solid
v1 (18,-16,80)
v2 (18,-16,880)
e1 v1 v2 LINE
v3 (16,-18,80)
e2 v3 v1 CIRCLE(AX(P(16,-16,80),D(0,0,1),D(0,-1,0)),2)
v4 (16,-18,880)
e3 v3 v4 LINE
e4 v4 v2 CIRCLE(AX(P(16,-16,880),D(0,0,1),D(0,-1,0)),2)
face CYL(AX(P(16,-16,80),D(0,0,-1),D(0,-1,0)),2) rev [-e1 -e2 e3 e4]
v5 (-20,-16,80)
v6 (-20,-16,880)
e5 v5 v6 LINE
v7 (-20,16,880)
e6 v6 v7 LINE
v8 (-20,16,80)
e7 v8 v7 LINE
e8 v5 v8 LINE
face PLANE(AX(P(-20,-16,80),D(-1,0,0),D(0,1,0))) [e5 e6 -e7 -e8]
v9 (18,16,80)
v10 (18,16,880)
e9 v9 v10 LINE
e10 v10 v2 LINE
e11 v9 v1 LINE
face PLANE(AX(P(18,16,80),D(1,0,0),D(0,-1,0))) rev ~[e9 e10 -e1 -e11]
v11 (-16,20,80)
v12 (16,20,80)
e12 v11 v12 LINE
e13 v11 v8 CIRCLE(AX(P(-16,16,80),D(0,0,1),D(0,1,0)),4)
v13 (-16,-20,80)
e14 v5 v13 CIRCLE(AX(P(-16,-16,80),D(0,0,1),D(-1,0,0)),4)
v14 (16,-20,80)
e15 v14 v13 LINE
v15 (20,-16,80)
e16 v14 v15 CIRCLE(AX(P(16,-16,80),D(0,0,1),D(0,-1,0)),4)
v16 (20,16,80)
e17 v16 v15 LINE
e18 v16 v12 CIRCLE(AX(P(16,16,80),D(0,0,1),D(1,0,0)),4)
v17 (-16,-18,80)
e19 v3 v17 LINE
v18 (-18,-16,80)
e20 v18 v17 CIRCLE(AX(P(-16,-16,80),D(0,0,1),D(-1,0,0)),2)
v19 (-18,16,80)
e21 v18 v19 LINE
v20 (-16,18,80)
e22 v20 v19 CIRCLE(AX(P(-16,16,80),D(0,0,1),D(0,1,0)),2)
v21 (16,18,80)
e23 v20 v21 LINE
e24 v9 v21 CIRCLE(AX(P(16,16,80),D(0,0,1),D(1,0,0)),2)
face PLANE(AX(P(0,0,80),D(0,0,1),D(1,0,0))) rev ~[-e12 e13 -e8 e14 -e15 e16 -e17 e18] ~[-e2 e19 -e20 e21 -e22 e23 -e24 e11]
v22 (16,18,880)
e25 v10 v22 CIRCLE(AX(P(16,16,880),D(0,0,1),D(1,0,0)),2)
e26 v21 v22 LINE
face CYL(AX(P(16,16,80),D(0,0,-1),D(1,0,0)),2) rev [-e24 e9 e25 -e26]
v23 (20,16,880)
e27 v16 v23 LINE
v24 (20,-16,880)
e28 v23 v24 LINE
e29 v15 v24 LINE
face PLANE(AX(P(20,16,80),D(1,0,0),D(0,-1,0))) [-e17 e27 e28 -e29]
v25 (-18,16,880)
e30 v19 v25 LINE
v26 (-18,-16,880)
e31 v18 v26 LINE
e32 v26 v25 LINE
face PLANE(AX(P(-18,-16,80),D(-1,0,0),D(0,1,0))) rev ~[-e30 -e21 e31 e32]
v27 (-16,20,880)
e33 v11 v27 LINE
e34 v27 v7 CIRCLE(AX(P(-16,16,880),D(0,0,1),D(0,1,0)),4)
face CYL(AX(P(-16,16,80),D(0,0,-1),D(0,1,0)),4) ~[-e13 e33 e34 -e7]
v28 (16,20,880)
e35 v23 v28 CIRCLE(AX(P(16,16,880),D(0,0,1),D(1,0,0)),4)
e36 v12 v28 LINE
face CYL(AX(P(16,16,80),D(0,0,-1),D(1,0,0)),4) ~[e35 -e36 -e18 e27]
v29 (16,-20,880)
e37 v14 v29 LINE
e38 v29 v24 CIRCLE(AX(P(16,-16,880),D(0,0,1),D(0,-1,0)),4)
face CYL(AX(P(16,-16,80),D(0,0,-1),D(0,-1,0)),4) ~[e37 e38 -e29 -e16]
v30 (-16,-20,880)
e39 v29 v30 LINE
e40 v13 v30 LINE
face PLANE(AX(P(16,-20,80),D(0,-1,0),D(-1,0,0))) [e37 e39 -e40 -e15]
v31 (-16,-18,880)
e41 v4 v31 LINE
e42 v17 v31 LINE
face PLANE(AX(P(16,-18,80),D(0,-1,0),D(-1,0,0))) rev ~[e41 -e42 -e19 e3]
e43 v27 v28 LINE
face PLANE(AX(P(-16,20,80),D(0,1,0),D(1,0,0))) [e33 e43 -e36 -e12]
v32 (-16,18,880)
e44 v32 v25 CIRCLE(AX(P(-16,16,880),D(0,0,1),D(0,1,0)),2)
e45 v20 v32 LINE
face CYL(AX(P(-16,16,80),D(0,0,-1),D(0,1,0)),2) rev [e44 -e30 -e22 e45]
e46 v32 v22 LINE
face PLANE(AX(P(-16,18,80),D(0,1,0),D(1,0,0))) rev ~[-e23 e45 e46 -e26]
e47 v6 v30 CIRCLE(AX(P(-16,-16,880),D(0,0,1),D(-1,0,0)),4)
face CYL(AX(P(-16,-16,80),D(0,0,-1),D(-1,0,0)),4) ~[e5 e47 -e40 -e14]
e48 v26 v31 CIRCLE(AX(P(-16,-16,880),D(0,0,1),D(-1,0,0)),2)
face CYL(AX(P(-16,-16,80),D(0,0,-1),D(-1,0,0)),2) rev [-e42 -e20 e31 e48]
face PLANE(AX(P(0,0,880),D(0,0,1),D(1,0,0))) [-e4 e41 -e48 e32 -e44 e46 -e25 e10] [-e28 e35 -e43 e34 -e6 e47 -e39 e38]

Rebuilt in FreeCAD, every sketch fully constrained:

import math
import FreeCAD as App
import Part
import Sketcher

V = App.Vector
Q = App.Units.Quantity

doc = App.newDocument("Part")
body = doc.addObject("PartDesign::Body", "Body")

# Sketch on XY plane
sketch1 = body.newObject("Sketcher::SketchObject", "Sketch")
sketch1.AttachmentSupport = (doc.getObject("XY_Plane"), [""])
sketch1.MapMode = "FlatFace"
sketch1.AttachmentOffset = App.Placement(V(0, 0, 80), App.Rotation())
sketch1.addGeometry(Part.LineSegment(V(-20, 16, 0), V(-20, -16, 0)), False)
sketch1.addGeometry(Part.ArcOfCircle(Part.Circle(V(-16, -16, 0), V(0, 0, 1), 4), math.radians(180), math.radians(270)), False)
sketch1.addGeometry(Part.LineSegment(V(-16, -20, 0), V(16, -20, 0)), False)
sketch1.addGeometry(Part.ArcOfCircle(Part.Circle(V(16, -16, 0), V(0, 0, 1), 4), math.radians(-90), math.radians(0)), False)
sketch1.addGeometry(Part.LineSegment(V(20, -16, 0), V(20, 16, 0)), False)
sketch1.addGeometry(Part.ArcOfCircle(Part.Circle(V(16, 16, 0), V(0, 0, 1), 4), math.radians(0), math.radians(90)), False)
sketch1.addGeometry(Part.LineSegment(V(16, 20, 0), V(-16, 20, 0)), False)
sketch1.addGeometry(Part.ArcOfCircle(Part.Circle(V(-16, 16, 0), V(0, 0, 1), 4), math.radians(90), math.radians(180)), False)
sketch1.addGeometry(Part.ArcOfCircle(Part.Circle(V(-16, 16, 0), V(0, 0, 1), 2), math.radians(90), math.radians(180)), False)
sketch1.addGeometry(Part.LineSegment(V(-16, 18, 0), V(16, 18, 0)), False)
sketch1.addGeometry(Part.ArcOfCircle(Part.Circle(V(16, 16, 0), V(0, 0, 1), 2), math.radians(0), math.radians(90)), False)
sketch1.addGeometry(Part.LineSegment(V(18, 16, 0), V(18, -16, 0)), False)
sketch1.addGeometry(Part.ArcOfCircle(Part.Circle(V(16, -16, 0), V(0, 0, 1), 2), math.radians(-90), math.radians(0)), False)
sketch1.addGeometry(Part.LineSegment(V(16, -18, 0), V(-16, -18, 0)), False)
sketch1.addGeometry(Part.ArcOfCircle(Part.Circle(V(-16, -16, 0), V(0, 0, 1), 2), math.radians(180), math.radians(270)), False)
sketch1.addGeometry(Part.LineSegment(V(-18, -16, 0), V(-18, 16, 0)), False)
sketch1.addConstraint(Sketcher.Constraint("Tangent", 0, 2, 1, 1))
sketch1.addConstraint(Sketcher.Constraint("Tangent", 1, 2, 2, 1))
sketch1.addConstraint(Sketcher.Constraint("Tangent", 2, 2, 3, 1))
sketch1.addConstraint(Sketcher.Constraint("Tangent", 3, 2, 4, 1))
sketch1.addConstraint(Sketcher.Constraint("Tangent", 4, 2, 5, 1))
sketch1.addConstraint(Sketcher.Constraint("Tangent", 5, 2, 6, 1))
sketch1.addConstraint(Sketcher.Constraint("Tangent", 6, 2, 7, 1))
sketch1.addConstraint(Sketcher.Constraint("Tangent", 7, 2, 0, 1))
sketch1.addConstraint(Sketcher.Constraint("Tangent", 8, 1, 9, 1))
sketch1.addConstraint(Sketcher.Constraint("Tangent", 9, 2, 10, 2))
sketch1.addConstraint(Sketcher.Constraint("Tangent", 10, 1, 11, 1))
sketch1.addConstraint(Sketcher.Constraint("Tangent", 11, 2, 12, 2))
sketch1.addConstraint(Sketcher.Constraint("Tangent", 12, 1, 13, 1))
sketch1.addConstraint(Sketcher.Constraint("Tangent", 13, 2, 14, 2))
sketch1.addConstraint(Sketcher.Constraint("Tangent", 14, 1, 15, 1))
sketch1.addConstraint(Sketcher.Constraint("Tangent", 15, 2, 8, 2))
sketch1.addConstraint(Sketcher.Constraint("Vertical", 0))
sketch1.addConstraint(Sketcher.Constraint("Horizontal", 2))
sketch1.addConstraint(Sketcher.Constraint("Vertical", 4))
sketch1.addConstraint(Sketcher.Constraint("Horizontal", 6))
sketch1.addConstraint(Sketcher.Constraint("Horizontal", 9))
sketch1.addConstraint(Sketcher.Constraint("Vertical", 11))
sketch1.addConstraint(Sketcher.Constraint("Horizontal", 13))
sketch1.addConstraint(Sketcher.Constraint("Vertical", 15))
sketch1.addConstraint(Sketcher.Constraint("Coincident", 8, 3, 7, 3))
sketch1.addConstraint(Sketcher.Constraint("Coincident", 10, 3, 5, 3))
sketch1.addConstraint(Sketcher.Constraint("Coincident", 12, 3, 3, 3))
sketch1.addConstraint(Sketcher.Constraint("Equal", 1, 3))
sketch1.addConstraint(Sketcher.Constraint("Equal", 3, 5))
sketch1.addConstraint(Sketcher.Constraint("Equal", 5, 7))
sketch1.addConstraint(Sketcher.Constraint("Equal", 12, 14))
sketch1.addConstraint(Sketcher.Constraint("Symmetric", 1, 3, 5, 3, -1, 1))
sketch1.addConstraint(Sketcher.Constraint("Equal", 13, 0))
sketch1.addConstraint(Sketcher.Constraint("Radius", 1, Q("4 mm")))
sketch1.addConstraint(Sketcher.Constraint("Radius", 8, Q("2 mm")))
sketch1.addConstraint(Sketcher.Constraint("DistanceX", 0, 2, -1, 1, Q("20 mm")))
pad1 = body.newObject("PartDesign::Pad", "Pad")
pad1.Profile = sketch1
pad1.Length = 800

doc.recompute()
